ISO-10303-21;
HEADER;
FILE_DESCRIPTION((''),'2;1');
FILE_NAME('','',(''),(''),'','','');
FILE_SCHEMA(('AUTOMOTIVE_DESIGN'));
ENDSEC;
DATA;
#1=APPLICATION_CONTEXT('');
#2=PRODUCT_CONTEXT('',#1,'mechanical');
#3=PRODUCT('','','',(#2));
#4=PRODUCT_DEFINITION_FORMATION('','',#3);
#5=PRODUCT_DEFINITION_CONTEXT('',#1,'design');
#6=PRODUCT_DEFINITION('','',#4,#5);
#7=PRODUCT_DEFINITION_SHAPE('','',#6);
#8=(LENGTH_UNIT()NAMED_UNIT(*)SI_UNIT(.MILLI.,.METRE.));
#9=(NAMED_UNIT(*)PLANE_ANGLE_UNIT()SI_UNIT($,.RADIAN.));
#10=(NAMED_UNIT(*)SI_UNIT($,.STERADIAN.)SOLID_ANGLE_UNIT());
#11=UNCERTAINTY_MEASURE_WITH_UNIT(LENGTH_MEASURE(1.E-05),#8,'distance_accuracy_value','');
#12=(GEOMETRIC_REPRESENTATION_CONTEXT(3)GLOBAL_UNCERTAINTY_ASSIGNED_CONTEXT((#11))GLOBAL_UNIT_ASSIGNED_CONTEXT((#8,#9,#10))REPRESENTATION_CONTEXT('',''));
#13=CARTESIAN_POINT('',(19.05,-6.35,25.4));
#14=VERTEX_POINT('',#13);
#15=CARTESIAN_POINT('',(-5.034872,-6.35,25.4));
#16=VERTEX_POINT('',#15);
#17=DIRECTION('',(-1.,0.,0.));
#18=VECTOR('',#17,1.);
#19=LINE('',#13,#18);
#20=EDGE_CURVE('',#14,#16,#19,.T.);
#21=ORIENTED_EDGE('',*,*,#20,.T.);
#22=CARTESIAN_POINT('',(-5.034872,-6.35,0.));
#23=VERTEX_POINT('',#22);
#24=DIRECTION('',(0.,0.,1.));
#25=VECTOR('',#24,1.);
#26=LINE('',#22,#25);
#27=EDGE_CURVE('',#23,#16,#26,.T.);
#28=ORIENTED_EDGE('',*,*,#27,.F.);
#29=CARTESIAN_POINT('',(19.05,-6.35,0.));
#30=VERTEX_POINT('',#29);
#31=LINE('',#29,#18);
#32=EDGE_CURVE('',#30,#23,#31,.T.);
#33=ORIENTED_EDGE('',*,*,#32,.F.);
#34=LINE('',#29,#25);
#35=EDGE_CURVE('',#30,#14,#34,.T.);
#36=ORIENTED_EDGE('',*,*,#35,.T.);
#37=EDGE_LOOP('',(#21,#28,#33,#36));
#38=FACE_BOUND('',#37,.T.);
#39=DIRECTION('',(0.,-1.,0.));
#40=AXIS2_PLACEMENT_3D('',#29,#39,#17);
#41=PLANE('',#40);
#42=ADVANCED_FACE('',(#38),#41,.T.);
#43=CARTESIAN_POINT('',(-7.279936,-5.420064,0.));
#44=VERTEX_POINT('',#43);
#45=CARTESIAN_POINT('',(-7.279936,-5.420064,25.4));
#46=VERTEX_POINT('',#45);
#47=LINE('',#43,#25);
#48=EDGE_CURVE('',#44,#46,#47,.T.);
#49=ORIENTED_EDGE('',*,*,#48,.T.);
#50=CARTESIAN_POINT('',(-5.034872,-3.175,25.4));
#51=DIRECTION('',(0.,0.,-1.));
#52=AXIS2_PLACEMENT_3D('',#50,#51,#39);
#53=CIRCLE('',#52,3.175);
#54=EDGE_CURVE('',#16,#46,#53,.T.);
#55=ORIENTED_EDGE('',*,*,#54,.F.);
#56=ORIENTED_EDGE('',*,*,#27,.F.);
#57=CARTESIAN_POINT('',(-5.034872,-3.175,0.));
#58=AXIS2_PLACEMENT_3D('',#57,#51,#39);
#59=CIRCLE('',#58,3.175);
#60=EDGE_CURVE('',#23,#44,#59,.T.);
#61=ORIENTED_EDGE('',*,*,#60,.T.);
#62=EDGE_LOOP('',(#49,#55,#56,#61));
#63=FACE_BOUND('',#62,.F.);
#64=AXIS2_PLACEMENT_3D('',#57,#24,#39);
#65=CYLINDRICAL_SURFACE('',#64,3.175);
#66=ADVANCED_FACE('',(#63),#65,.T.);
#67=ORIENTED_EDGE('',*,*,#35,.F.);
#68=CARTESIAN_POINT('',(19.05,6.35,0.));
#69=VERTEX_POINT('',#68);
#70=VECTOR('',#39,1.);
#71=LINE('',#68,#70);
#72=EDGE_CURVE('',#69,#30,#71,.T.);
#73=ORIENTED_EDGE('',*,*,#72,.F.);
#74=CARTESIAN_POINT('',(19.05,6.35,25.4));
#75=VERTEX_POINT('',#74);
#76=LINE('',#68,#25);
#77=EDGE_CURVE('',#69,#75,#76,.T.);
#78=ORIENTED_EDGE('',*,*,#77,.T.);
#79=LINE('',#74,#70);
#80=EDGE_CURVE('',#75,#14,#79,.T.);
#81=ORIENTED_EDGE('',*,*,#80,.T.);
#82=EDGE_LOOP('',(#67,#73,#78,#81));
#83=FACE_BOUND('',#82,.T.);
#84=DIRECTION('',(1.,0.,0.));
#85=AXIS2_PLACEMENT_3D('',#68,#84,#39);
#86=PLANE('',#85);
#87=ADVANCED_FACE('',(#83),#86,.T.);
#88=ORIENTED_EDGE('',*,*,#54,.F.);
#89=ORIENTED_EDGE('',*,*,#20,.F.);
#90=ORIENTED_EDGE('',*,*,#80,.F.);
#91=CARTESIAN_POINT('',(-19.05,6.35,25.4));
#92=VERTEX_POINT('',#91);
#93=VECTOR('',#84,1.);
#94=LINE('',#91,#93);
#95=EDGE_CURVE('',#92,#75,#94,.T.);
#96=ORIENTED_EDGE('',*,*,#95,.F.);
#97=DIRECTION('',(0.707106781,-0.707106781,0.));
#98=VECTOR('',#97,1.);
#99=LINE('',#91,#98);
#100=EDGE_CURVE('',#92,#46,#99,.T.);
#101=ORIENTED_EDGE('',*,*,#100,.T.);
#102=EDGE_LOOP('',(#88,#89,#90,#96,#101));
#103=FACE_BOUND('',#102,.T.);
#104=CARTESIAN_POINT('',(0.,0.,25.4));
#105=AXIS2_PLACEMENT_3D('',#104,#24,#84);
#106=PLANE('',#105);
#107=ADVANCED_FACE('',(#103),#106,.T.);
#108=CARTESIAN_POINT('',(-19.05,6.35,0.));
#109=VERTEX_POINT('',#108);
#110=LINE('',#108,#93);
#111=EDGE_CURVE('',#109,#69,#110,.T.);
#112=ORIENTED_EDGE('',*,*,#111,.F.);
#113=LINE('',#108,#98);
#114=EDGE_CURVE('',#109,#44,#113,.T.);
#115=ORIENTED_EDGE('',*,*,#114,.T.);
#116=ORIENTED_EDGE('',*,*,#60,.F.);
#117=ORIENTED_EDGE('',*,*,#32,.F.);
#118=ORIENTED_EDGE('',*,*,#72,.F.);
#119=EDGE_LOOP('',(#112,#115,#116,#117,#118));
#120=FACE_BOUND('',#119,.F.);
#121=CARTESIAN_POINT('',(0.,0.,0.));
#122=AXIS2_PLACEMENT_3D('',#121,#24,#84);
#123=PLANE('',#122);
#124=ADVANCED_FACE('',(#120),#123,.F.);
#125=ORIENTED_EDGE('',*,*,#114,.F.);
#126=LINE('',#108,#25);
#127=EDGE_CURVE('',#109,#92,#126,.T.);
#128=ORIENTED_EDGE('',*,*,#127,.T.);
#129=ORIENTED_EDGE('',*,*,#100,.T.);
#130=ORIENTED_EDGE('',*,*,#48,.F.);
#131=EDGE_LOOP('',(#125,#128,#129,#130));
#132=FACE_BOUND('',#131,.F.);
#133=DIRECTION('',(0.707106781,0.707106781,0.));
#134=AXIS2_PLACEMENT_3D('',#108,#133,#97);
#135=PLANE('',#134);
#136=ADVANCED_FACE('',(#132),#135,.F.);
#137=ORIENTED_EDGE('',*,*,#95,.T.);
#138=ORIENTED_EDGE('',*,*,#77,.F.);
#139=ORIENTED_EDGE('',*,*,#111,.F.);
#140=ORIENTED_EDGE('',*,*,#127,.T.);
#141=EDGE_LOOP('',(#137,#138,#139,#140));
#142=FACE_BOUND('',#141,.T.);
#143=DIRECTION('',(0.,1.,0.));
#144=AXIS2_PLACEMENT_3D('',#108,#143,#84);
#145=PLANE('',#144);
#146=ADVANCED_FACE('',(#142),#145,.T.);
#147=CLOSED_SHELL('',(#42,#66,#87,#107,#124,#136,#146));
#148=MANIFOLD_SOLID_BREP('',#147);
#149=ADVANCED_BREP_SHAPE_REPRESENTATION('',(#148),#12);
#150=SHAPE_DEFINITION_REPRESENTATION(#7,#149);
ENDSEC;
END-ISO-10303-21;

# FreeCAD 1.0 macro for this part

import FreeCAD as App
import Part
import Sketcher

V = App.Vector
Q = App.Units.Quantity


def edges_at(feature, points):
    """Names of the edges that pass closest to the given points."""
    edges = feature.Shape.Edges
    near = lambda p: min(range(len(edges)), key=lambda i: edges[i].distToShape(Part.Vertex(*p))[0])
    return sorted({f"Edge{near(p) + 1}" for p in points})


def add_polygon(sketch, points):
    """Adds a closed chain of lines whose ends are joined by coincident constraints."""
    first, n = sketch.GeometryCount, len(points)
    for a, b in zip(points, points[1:] + points[:1]):
        sketch.addGeometry(Part.LineSegment(App.Vector(*a, 0), App.Vector(*b, 0)), False)
    for i in range(n):
        sketch.addConstraint(Sketcher.Constraint("Coincident", first + i, 2, first + (i + 1) % n, 1))

doc = App.newDocument("Part")
body = doc.addObject("PartDesign::Body", "Body")

# Sketch on XY plane
sketch1 = doc.addObject("Sketcher::SketchObject", "Sketch")
body.addObject(sketch1)
sketch1.AttachmentSupport = (doc.XY_Plane, [""])
sketch1.MapMode = "FlatFace"
add_polygon(sketch1, [(-6.35, -6.35), (19.05, -6.35), (19.05, 6.35), (-19.05, 6.35)])  # lines 0-3
sketch1.addConstraint(Sketcher.Constraint("Horizontal", 0))
sketch1.addConstraint(Sketcher.Constraint("Vertical", 1))
sketch1.addConstraint(Sketcher.Constraint("Horizontal", 2))
sketch1.addConstraint(Sketcher.Constraint("Symmetric", 0, 2, 2, 2, -1, 1))
sketch1.addConstraint(Sketcher.Constraint("DistanceX", 2, 2, 2, 1, Q("1.5 in")))
sketch1.addConstraint(Sketcher.Constraint("DistanceY", 1, 1, 1, 2, Q("0.5 in")))
sketch1.addConstraint(Sketcher.Constraint("Angle", 3, Q("-45 deg")))
pad1 = doc.addObject("PartDesign::Pad", "Pad")
body.addObject(pad1)
pad1.Profile = sketch1
pad1.Length = Q("1 in")
doc.recompute()

fillet = doc.addObject("PartDesign::Fillet", "Fillet")
body.addObject(fillet)
fillet.Base = (pad1, edges_at(pad1, [(-6.35, -6.35, 12.7)]))
fillet.Radius = Q("0.125 in")

doc.recompute()
